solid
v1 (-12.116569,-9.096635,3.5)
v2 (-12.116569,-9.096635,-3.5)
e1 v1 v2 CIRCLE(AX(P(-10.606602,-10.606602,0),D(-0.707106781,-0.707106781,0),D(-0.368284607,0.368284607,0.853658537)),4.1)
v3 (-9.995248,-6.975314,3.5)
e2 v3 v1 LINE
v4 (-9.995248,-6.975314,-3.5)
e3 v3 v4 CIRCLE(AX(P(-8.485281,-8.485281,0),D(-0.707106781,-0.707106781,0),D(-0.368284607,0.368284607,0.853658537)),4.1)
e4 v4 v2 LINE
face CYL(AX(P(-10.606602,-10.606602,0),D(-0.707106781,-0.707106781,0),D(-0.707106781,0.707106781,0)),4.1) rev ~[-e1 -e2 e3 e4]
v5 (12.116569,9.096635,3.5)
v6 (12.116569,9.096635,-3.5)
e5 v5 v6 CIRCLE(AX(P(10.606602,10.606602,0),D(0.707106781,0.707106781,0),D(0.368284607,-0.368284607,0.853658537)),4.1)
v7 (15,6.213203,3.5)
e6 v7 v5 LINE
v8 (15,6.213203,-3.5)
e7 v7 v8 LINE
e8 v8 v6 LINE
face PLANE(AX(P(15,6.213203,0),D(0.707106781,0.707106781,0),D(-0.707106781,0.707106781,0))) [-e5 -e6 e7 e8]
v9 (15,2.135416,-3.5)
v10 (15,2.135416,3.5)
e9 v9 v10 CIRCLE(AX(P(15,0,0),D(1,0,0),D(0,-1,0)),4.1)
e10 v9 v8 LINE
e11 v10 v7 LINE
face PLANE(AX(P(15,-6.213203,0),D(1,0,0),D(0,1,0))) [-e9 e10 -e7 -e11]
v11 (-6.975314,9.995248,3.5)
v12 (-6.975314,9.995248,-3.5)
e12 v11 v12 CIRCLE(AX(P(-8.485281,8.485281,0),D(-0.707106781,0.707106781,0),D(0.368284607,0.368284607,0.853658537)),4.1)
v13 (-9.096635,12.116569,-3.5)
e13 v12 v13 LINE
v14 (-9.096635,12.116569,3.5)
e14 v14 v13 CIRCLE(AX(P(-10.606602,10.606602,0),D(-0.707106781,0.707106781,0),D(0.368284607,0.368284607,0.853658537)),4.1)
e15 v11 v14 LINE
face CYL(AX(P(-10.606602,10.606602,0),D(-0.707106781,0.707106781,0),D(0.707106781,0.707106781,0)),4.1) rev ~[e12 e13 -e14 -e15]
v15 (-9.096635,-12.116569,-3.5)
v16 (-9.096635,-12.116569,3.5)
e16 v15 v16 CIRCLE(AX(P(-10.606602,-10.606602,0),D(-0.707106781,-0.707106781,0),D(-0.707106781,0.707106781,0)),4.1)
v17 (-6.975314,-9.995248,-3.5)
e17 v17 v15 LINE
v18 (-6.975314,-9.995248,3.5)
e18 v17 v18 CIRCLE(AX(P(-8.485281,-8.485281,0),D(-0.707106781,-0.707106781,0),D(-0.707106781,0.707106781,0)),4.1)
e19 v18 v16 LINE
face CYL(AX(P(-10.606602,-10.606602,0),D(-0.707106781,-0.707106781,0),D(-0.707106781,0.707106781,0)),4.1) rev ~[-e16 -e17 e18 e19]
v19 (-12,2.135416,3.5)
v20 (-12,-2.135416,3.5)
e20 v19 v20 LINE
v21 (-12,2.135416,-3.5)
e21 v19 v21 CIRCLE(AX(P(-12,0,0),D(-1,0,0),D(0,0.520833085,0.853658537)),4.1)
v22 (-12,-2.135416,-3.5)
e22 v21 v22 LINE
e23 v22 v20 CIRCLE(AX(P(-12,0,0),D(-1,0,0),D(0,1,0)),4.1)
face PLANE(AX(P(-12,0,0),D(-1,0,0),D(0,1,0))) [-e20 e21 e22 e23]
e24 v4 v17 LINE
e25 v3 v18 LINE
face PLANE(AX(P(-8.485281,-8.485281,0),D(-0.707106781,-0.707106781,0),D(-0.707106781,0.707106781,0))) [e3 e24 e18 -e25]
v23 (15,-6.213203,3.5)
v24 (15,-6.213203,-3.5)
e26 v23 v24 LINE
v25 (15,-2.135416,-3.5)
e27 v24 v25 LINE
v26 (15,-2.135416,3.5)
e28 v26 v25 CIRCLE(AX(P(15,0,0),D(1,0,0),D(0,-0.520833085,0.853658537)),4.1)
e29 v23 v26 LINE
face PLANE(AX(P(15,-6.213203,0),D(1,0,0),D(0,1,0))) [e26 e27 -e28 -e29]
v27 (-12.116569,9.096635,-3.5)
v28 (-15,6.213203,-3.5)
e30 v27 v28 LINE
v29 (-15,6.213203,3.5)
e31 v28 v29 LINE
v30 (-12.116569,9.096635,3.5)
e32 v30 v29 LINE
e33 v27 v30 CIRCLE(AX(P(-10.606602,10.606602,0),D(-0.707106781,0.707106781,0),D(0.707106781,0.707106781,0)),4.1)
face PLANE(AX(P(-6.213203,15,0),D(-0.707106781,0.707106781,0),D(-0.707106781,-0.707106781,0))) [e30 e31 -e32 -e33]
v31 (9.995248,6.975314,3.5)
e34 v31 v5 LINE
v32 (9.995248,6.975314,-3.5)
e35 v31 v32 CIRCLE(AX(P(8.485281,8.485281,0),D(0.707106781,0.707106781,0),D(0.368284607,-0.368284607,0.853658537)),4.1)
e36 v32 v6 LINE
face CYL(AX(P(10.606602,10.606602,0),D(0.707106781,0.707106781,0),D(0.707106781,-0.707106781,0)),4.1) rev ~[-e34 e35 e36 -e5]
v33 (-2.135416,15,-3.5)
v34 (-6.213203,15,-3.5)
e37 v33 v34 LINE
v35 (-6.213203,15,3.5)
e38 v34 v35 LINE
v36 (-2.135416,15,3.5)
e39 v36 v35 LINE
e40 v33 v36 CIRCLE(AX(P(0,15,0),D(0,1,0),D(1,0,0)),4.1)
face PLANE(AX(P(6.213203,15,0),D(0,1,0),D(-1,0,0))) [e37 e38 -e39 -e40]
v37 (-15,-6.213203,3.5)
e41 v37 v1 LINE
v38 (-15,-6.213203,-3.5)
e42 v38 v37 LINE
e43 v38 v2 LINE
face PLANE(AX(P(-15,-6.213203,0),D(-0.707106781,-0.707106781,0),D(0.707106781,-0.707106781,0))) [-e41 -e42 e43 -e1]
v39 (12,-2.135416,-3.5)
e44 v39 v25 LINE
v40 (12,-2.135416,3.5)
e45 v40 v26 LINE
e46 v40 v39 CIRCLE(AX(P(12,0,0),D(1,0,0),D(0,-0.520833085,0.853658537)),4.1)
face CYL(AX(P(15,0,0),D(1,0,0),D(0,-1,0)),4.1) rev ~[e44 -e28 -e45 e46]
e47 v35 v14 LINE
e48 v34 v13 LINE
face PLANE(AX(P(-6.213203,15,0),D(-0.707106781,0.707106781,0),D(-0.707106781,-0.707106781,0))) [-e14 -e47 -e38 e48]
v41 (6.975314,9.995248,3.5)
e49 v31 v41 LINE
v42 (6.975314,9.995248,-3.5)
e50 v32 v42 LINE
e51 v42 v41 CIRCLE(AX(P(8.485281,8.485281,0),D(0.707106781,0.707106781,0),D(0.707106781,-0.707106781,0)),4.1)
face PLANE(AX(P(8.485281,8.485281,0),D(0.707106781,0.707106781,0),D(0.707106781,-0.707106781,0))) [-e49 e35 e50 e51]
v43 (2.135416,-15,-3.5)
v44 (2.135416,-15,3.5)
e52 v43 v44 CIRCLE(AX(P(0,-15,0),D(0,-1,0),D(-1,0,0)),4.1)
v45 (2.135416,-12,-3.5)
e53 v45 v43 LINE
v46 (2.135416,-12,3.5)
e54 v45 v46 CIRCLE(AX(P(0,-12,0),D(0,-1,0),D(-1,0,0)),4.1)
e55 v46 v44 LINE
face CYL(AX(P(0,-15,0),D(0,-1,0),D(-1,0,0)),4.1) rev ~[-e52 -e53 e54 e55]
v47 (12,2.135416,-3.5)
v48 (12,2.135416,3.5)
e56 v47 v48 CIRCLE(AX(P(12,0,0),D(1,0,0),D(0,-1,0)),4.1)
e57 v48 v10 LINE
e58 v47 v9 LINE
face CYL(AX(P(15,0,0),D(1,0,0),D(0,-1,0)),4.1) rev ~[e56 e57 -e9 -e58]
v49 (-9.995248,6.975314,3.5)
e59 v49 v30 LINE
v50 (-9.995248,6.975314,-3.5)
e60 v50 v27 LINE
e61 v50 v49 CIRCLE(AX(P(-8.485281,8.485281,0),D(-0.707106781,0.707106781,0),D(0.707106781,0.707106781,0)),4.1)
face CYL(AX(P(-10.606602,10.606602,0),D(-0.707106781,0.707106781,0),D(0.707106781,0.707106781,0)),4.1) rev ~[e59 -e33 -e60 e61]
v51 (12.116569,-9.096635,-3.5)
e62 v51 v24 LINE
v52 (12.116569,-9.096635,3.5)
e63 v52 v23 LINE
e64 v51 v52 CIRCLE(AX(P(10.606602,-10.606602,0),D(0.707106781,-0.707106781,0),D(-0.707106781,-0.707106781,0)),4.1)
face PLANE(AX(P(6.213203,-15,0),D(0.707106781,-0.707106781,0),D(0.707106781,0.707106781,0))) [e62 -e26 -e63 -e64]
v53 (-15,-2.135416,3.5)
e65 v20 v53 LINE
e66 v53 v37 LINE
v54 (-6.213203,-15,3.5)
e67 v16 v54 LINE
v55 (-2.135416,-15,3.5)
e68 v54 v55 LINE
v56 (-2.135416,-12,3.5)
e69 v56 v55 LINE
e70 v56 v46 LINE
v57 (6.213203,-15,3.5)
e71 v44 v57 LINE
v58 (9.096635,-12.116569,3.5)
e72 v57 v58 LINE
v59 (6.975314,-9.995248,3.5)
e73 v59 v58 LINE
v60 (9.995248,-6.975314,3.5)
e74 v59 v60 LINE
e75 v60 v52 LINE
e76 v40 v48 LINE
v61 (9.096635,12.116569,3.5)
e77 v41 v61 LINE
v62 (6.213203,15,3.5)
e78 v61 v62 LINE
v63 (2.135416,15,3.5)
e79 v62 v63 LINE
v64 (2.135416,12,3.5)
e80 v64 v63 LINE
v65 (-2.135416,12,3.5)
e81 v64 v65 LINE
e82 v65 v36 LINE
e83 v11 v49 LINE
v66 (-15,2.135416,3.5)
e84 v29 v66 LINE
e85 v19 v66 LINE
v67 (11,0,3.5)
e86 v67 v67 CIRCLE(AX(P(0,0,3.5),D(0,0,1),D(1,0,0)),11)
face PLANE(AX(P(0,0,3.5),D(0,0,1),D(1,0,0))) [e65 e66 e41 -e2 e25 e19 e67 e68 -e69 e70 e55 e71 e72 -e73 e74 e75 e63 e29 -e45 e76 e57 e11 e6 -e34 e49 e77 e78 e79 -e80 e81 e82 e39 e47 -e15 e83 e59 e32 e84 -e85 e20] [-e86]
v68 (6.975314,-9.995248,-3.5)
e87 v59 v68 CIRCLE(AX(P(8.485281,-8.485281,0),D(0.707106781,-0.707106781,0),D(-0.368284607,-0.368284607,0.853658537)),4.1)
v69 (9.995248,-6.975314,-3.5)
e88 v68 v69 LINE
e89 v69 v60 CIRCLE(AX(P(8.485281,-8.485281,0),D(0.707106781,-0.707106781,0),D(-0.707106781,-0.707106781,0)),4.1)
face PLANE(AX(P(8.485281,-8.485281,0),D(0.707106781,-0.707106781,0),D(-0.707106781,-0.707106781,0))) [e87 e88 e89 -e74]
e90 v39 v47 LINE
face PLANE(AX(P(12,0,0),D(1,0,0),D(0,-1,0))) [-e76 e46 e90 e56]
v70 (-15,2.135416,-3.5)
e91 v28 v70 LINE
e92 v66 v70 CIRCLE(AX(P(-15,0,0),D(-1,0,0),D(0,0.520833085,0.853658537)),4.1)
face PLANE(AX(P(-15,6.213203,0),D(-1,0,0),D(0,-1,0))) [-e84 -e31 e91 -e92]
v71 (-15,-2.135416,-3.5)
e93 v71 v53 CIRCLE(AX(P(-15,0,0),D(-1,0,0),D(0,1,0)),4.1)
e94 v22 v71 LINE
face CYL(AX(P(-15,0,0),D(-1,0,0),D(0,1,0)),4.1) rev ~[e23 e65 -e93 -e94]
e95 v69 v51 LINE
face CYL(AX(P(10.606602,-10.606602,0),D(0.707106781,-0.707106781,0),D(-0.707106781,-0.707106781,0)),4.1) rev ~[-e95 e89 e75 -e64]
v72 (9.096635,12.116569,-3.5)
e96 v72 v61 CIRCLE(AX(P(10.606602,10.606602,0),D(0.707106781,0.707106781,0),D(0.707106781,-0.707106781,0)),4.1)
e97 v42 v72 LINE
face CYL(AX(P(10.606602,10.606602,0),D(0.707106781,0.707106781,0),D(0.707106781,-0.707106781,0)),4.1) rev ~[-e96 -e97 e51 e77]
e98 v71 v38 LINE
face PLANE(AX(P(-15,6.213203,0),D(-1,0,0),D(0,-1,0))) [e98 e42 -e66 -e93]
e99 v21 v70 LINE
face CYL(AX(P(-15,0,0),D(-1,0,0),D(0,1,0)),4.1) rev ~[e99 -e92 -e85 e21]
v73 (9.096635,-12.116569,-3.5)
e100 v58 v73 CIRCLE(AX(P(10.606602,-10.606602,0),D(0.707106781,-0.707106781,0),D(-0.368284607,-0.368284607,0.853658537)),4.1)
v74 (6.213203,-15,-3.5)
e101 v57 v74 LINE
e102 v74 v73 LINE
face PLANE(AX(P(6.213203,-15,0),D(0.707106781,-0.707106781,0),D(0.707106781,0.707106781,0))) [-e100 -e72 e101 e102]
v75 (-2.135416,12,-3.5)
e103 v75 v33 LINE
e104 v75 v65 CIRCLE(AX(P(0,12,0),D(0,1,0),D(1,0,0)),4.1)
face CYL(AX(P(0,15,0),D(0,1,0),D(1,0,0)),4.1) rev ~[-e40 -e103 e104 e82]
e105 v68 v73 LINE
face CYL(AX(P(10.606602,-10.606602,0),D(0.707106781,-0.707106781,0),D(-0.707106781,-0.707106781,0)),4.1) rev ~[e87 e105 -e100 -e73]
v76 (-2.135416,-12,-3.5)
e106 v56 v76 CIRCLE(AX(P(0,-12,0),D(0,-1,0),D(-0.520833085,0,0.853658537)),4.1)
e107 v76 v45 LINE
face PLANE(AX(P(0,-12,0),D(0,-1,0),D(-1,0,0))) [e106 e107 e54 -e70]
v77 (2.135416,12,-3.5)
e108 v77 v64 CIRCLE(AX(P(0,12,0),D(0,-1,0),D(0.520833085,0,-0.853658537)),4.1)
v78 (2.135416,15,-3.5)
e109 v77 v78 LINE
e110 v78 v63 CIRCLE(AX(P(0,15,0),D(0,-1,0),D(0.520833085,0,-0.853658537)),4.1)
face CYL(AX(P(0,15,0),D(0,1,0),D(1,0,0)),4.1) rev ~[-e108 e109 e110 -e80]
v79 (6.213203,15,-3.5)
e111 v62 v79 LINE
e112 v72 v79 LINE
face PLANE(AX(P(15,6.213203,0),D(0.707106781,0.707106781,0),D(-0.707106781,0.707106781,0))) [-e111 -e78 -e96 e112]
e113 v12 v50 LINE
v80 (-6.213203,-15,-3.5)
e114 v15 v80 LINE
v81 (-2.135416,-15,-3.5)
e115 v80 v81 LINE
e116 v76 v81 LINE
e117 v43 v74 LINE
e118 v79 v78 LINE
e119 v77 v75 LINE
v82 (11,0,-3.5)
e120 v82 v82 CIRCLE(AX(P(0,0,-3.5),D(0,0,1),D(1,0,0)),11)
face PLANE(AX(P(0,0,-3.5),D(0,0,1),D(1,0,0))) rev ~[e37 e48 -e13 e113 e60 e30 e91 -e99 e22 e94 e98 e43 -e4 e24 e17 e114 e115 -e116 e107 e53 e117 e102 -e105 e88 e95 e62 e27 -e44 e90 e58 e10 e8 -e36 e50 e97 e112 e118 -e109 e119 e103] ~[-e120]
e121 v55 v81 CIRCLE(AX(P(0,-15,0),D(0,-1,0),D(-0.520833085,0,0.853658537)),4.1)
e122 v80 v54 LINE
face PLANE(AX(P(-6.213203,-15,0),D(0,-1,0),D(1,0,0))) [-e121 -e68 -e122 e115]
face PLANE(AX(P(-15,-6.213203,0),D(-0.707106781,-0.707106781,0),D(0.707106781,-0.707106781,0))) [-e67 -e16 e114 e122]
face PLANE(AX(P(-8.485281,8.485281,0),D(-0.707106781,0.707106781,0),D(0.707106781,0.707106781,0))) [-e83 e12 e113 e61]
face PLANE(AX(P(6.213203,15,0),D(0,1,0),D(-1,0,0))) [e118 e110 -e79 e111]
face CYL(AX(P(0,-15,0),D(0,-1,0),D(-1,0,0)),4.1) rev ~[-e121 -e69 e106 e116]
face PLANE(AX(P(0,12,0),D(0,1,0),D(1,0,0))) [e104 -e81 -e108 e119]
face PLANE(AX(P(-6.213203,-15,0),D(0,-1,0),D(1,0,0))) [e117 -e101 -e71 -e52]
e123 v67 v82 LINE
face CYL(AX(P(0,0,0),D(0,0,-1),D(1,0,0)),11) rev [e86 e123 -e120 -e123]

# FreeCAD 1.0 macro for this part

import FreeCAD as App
import Part
import Sketcher
from FreeCAD import Vector


def add_polygon(sketch, points):
    """Adds a closed chain of lines whose ends are joined by coincident constraints."""
    first, n = sketch.GeometryCount, len(points)
    for a, b in zip(points, points[1:] + points[:1]):
        sketch.addGeometry(Part.LineSegment(App.Vector(*a, 0), App.Vector(*b, 0)), False)
    for i in range(n):
        sketch.addConstraint(Sketcher.Constraint("Coincident", first + i, 2, first + (i + 1) % n, 1))

doc = App.newDocument("Part")
body = doc.addObject("PartDesign::Body", "Body")

sketch1 = body.newObject("Sketcher::SketchObject", "Sketch")
sketch1.AttachmentSupport = (doc.getObject("XY_Plane"), [""])
sketch1.MapMode = "FlatFace"
add_polygon(sketch1, [(6, 15), (-6, 15), (-15, 6), (-15, -6), (-6, -15), (6, -15), (15, -6), (15, 6)])
sketch1.addGeometry(Part.Circle(Vector(0, 0, 0), Vector(0, 0, 1), 11), False)
sketch1.addConstraint([
    Sketcher.Constraint("Horizontal", 0),
    Sketcher.Constraint("Vertical", 2),
    Sketcher.Constraint("Horizontal", 4),
    Sketcher.Constraint("Vertical", 6),
    Sketcher.Constraint("Coincident", 8, 3, -1, 1),
    Sketcher.Constraint("Symmetric", 0, 2, 4, 2, -1, 1),
    Sketcher.Constraint("Symmetric", 1, 2, 5, 2, -1, 1),
    Sketcher.Constraint("Perpendicular", 1, 3),
    Sketcher.Constraint("Perpendicular", 5, 7),
    Sketcher.Constraint("Horizontal", 2, 2, 5, 2),
    Sketcher.Constraint("Horizontal", 1, 2, 6, 2),
    Sketcher.Constraint("Vertical", 0, 2, 3, 2),
    Sketcher.Constraint("Equal", 4, 2),
    Sketcher.Constraint("Diameter", 8, 22.0),
    Sketcher.Constraint("DistanceY", -1, 1, 0, 2, 15.0),
    Sketcher.Constraint("DistanceX", 0, 2, 0, 1, 12.426407),
])
pad1 = body.newObject("PartDesign::Pad", "Pad")
pad1.Profile = sketch1
pad1.Length = 7
pad1.Midplane = True

sketch2 = body.newObject("Sketcher::SketchObject", "Sketch001")
sketch2.AttachmentSupport = (doc.getObject("XZ_Plane"), [""])
sketch2.MapMode = "FlatFace"
sketch2.AttachmentOffset = App.Placement(Vector(0, 0, 15), App.Rotation())
sketch2.addGeometry(Part.Circle(Vector(0, 0, 0), Vector(0, 0, 1), 4.1), False)
sketch2.addConstraint([
    Sketcher.Constraint("Coincident", 0, 3, -1, 1),
    Sketcher.Constraint("Diameter", 0, 8.2),
])
pocket1 = body.newObject("PartDesign::Pocket", "Pocket")
pocket1.Profile = sketch2
pocket1.Length = 3
doc.recompute()

polarpattern = body.newObject("PartDesign::PolarPattern", "PolarPattern")
polarpattern.Originals = [pocket1]
polarpattern.Axis = (doc.getObject("Z_Axis"), [""])
polarpattern.Angle = 360
polarpattern.Occurrences = 8
body.Tip = polarpattern

doc.recompute()
